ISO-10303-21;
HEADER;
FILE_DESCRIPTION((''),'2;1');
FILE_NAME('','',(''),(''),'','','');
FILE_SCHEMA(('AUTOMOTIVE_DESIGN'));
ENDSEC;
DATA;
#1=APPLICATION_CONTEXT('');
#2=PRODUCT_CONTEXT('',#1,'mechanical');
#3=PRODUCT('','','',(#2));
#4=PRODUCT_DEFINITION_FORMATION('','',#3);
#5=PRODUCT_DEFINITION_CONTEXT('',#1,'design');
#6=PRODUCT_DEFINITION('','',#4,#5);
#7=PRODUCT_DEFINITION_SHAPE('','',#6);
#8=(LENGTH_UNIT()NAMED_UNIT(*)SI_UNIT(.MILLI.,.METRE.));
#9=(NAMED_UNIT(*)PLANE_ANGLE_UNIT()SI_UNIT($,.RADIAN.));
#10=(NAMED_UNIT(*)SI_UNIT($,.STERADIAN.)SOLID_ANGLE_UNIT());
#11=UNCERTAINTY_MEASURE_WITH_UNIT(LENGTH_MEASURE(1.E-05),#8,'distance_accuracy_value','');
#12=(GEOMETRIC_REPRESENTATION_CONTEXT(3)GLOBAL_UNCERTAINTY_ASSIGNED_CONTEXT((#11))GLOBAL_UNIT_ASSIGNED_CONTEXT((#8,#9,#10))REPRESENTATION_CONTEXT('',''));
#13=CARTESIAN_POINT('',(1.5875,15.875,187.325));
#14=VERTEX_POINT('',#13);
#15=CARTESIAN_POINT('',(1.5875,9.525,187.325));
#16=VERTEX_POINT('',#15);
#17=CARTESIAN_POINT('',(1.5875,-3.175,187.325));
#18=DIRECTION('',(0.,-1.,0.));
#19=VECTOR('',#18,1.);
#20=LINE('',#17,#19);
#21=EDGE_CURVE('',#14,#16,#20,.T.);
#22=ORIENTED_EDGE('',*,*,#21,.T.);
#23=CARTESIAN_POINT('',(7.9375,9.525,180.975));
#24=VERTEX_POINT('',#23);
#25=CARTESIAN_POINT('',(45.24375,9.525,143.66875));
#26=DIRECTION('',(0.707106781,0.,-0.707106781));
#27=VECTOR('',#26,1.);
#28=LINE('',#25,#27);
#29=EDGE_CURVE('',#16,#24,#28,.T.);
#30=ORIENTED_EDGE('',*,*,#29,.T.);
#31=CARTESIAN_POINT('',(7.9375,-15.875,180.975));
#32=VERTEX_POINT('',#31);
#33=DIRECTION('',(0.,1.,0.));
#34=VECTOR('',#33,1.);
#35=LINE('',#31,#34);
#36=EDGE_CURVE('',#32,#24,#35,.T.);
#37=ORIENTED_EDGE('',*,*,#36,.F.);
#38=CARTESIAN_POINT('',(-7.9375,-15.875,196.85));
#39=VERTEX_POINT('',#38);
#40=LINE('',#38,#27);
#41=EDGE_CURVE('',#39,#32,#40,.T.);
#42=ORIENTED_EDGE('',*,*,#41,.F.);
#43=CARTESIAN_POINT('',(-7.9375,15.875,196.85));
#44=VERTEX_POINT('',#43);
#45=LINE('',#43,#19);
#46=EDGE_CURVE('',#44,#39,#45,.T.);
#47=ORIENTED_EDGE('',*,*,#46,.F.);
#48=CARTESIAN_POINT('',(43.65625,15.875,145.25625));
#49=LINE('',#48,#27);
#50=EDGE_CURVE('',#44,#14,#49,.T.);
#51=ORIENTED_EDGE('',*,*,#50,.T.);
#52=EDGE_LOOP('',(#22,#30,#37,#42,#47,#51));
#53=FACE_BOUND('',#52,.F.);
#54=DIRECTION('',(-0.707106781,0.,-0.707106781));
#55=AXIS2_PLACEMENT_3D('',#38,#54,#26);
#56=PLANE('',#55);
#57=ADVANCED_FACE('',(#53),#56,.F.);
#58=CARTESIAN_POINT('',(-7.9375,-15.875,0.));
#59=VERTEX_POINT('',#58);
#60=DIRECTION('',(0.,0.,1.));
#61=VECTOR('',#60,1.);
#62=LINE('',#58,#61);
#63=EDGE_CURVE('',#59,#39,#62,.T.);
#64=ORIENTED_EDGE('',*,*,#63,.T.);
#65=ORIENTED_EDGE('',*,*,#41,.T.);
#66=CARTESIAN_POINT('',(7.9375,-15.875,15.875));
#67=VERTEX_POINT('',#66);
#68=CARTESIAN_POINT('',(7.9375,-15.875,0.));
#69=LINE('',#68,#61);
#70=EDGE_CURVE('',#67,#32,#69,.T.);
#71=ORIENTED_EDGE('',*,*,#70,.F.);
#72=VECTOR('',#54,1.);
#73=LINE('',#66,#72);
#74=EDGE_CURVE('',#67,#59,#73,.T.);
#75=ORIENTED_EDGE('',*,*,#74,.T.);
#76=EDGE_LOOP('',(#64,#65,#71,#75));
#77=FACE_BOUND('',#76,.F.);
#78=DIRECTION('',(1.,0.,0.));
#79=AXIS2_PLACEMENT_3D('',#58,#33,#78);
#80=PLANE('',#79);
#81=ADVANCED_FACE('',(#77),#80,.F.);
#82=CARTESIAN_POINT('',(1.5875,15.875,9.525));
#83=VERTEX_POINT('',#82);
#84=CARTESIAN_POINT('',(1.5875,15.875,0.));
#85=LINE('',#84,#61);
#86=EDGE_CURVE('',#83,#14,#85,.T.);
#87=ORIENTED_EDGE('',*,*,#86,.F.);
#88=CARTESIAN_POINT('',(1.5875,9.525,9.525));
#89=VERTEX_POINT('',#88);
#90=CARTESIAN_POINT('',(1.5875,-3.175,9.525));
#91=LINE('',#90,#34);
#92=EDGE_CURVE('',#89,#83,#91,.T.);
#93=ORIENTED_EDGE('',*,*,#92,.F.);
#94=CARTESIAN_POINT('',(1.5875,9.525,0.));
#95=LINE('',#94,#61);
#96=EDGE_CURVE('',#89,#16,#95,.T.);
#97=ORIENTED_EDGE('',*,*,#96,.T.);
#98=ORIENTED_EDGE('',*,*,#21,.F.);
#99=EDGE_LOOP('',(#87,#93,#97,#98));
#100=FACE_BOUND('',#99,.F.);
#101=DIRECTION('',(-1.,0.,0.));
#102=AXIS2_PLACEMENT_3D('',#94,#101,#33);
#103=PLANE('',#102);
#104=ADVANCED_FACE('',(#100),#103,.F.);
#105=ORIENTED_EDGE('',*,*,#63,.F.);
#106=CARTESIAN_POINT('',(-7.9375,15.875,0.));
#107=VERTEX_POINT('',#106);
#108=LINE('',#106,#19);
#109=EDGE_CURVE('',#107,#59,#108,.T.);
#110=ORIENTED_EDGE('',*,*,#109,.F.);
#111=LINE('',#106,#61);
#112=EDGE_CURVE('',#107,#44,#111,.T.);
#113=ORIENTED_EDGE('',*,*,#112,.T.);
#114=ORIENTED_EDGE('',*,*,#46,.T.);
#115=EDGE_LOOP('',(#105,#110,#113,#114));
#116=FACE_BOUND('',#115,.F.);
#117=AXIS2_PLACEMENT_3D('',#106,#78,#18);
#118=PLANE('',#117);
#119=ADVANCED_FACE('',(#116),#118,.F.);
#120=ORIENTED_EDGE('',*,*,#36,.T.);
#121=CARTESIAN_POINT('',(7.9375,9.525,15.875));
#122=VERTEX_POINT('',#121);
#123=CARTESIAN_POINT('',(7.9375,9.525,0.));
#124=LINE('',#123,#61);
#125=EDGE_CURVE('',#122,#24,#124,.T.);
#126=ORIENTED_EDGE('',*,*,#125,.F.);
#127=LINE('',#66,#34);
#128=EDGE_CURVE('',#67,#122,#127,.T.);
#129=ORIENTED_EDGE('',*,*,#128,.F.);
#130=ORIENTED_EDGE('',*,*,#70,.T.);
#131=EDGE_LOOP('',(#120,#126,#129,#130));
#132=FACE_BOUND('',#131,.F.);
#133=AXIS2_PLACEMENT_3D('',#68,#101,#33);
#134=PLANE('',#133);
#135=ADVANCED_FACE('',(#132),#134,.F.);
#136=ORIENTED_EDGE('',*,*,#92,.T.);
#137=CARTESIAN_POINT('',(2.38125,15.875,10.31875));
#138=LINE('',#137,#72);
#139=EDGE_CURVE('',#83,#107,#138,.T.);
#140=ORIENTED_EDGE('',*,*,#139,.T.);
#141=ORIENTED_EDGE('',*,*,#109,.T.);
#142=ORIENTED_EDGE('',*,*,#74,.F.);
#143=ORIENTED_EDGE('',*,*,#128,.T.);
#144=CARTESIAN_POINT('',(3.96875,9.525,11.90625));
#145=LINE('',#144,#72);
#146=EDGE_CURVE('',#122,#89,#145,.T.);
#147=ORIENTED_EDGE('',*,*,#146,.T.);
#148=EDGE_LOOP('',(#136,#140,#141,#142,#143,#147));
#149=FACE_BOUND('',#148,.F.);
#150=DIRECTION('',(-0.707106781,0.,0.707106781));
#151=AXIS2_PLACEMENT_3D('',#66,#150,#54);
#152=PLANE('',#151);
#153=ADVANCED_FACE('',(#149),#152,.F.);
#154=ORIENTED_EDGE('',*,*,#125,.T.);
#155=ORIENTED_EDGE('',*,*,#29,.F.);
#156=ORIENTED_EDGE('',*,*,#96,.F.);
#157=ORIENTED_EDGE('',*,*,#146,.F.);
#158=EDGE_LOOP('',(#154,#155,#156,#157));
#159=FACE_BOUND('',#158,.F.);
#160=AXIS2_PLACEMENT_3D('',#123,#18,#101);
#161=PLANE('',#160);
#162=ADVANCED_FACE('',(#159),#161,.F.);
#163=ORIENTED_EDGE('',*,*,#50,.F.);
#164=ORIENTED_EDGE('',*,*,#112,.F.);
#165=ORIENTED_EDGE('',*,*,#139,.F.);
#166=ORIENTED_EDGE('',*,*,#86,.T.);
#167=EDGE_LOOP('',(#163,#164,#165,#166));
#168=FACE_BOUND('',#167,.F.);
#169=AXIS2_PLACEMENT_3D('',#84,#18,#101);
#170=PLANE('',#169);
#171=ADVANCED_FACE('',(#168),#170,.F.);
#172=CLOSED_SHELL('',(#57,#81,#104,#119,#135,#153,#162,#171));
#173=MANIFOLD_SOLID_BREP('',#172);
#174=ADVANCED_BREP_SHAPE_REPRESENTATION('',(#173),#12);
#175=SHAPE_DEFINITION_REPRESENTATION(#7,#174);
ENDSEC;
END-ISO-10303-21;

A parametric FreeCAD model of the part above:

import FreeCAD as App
import Part
import Sketcher
from FreeCAD import Vector
Q = App.Units.Quantity

doc = App.newDocument("Part")
body = doc.addObject("PartDesign::Body", "Body")

# Sketch on XY plane
sketch1 = doc.addObject("Sketcher::SketchObject", "Sketch")
body.addObject(sketch1)
sketch1.AttachmentSupport = (doc.XY_Plane, [""])
sketch1.MapMode = "FlatFace"
sketch1.addGeometry(Part.LineSegment(Vector(1.5875, 9.525, 0), Vector(1.5875, 15.875, 0)), False)
sketch1.addGeometry(Part.LineSegment(Vector(1.5875, 15.875, 0), Vector(-7.9375, 15.875, 0)), False)
sketch1.addGeometry(Part.LineSegment(Vector(-7.9375, 15.875, 0), Vector(-7.9375, -15.875, 0)), False)
sketch1.addGeometry(Part.LineSegment(Vector(-7.9375, -15.875, 0), Vector(7.9375, -15.875, 0)), False)
sketch1.addGeometry(Part.LineSegment(Vector(7.9375, -15.875, 0), Vector(7.9375, 9.525, 0)), False)
sketch1.addGeometry(Part.LineSegment(Vector(7.9375, 9.525, 0), Vector(1.5875, 9.525, 0)), False)
sketch1.addConstraint(Sketcher.Constraint("Coincident", 0, 2, 1, 1))
sketch1.addConstraint(Sketcher.Constraint("Coincident", 1, 2, 2, 1))
sketch1.addConstraint(Sketcher.Constraint("Coincident", 2, 2, 3, 1))
sketch1.addConstraint(Sketcher.Constraint("Coincident", 3, 2, 4, 1))
sketch1.addConstraint(Sketcher.Constraint("Coincident", 4, 2, 5, 1))
sketch1.addConstraint(Sketcher.Constraint("Coincident", 5, 2, 0, 1))
sketch1.addConstraint(Sketcher.Constraint("Vertical", 0))
sketch1.addConstraint(Sketcher.Constraint("Horizontal", 1))
sketch1.addConstraint(Sketcher.Constraint("Vertical", 2))
sketch1.addConstraint(Sketcher.Constraint("Horizontal", 3))
sketch1.addConstraint(Sketcher.Constraint("Vertical", 4))
sketch1.addConstraint(Sketcher.Constraint("Horizontal", 5))
sketch1.addConstraint(Sketcher.Constraint("Symmetric", 1, 2, 3, 2, -1, 1))
sketch1.addConstraint(Sketcher.Constraint("Equal", 5, 0))
sketch1.addConstraint(Sketcher.Constraint("DistanceY", 4, 1, 4, 2, Q("1 in")))
sketch1.addConstraint(Sketcher.Constraint("DistanceX", 5, 2, 5, 1, Q("0.25 in")))
sketch1.addConstraint(Sketcher.Constraint("DistanceX", 1, 2, 1, 1, Q("0.375 in")))
pad1 = doc.addObject("PartDesign::Pad", "Pad")
body.addObject(pad1)
pad1.Profile = sketch1
pad1.Length = Q("7.75 in")

# Sketch on XZ plane
sketch2 = doc.addObject("Sketcher::SketchObject", "Sketch001")
body.addObject(sketch2)
sketch2.AttachmentSupport = (doc.XZ_Plane, [""])
sketch2.MapMode = "FlatFace"
sketch2.AttachmentOffset = App.Placement(Vector(0, 0, 0.625 * 25.4), App.Rotation())
sketch2.addGeometry(Part.LineSegment(Vector(7.9375, 196.85, 0), Vector(-7.9375, 196.85, 0)), False)
sketch2.addGeometry(Part.LineSegment(Vector(-7.9375, 196.85, 0), Vector(7.9375, 180.975, 0)), False)
sketch2.addGeometry(Part.LineSegment(Vector(7.9375, 180.975, 0), Vector(7.9375, 196.85, 0)), False)
sketch2.addGeometry(Part.LineSegment(Vector(7.9375, 15.875, 0), Vector(-7.9375, 0, 0)), False)
sketch2.addGeometry(Part.LineSegment(Vector(-7.9375, 0, 0), Vector(7.9375, 0, 0)), False)
sketch2.addGeometry(Part.LineSegment(Vector(7.9375, 0, 0), Vector(7.9375, 15.875, 0)), False)
sketch2.addConstraint(Sketcher.Constraint("Coincident", 0, 2, 1, 1))
sketch2.addConstraint(Sketcher.Constraint("Coincident", 1, 2, 2, 1))
sketch2.addConstraint(Sketcher.Constraint("Coincident", 2, 2, 0, 1))
sketch2.addConstraint(Sketcher.Constraint("Coincident", 3, 2, 4, 1))
sketch2.addConstraint(Sketcher.Constraint("Coincident", 4, 2, 5, 1))
sketch2.addConstraint(Sketcher.Constraint("Coincident", 5, 2, 3, 1))
sketch2.addConstraint(Sketcher.Constraint("Horizontal", 0))
sketch2.addConstraint(Sketcher.Constraint("Vertical", 2))
sketch2.addConstraint(Sketcher.Constraint("Horizontal", 4))
sketch2.addConstraint(Sketcher.Constraint("Vertical", 5))
sketch2.addConstraint(Sketcher.Constraint("Symmetric", 3, 2, 4, 2, -1, 1))
sketch2.addConstraint(Sketcher.Constraint("Perpendicular", 1, 3))
sketch2.addConstraint(Sketcher.Constraint("Vertical", 0, 2, 3, 2))
sketch2.addConstraint(Sketcher.Constraint("Vertical", 2, 2, 4, 2))
sketch2.addConstraint(Sketcher.Constraint("Equal", 4, 2))
sketch2.addConstraint(Sketcher.Constraint("DistanceY", 5, 2, 1, 2, Q("6.5 in")))
sketch2.addConstraint(Sketcher.Constraint("DistanceX", 0, 2, 0, 1, Q("0.625 in")))
pocket1 = doc.addObject("PartDesign::Pocket", "Pocket")
body.addObject(pocket1)
pocket1.Profile = sketch2
pocket1.Type = "ThroughAll"

doc.recompute()
